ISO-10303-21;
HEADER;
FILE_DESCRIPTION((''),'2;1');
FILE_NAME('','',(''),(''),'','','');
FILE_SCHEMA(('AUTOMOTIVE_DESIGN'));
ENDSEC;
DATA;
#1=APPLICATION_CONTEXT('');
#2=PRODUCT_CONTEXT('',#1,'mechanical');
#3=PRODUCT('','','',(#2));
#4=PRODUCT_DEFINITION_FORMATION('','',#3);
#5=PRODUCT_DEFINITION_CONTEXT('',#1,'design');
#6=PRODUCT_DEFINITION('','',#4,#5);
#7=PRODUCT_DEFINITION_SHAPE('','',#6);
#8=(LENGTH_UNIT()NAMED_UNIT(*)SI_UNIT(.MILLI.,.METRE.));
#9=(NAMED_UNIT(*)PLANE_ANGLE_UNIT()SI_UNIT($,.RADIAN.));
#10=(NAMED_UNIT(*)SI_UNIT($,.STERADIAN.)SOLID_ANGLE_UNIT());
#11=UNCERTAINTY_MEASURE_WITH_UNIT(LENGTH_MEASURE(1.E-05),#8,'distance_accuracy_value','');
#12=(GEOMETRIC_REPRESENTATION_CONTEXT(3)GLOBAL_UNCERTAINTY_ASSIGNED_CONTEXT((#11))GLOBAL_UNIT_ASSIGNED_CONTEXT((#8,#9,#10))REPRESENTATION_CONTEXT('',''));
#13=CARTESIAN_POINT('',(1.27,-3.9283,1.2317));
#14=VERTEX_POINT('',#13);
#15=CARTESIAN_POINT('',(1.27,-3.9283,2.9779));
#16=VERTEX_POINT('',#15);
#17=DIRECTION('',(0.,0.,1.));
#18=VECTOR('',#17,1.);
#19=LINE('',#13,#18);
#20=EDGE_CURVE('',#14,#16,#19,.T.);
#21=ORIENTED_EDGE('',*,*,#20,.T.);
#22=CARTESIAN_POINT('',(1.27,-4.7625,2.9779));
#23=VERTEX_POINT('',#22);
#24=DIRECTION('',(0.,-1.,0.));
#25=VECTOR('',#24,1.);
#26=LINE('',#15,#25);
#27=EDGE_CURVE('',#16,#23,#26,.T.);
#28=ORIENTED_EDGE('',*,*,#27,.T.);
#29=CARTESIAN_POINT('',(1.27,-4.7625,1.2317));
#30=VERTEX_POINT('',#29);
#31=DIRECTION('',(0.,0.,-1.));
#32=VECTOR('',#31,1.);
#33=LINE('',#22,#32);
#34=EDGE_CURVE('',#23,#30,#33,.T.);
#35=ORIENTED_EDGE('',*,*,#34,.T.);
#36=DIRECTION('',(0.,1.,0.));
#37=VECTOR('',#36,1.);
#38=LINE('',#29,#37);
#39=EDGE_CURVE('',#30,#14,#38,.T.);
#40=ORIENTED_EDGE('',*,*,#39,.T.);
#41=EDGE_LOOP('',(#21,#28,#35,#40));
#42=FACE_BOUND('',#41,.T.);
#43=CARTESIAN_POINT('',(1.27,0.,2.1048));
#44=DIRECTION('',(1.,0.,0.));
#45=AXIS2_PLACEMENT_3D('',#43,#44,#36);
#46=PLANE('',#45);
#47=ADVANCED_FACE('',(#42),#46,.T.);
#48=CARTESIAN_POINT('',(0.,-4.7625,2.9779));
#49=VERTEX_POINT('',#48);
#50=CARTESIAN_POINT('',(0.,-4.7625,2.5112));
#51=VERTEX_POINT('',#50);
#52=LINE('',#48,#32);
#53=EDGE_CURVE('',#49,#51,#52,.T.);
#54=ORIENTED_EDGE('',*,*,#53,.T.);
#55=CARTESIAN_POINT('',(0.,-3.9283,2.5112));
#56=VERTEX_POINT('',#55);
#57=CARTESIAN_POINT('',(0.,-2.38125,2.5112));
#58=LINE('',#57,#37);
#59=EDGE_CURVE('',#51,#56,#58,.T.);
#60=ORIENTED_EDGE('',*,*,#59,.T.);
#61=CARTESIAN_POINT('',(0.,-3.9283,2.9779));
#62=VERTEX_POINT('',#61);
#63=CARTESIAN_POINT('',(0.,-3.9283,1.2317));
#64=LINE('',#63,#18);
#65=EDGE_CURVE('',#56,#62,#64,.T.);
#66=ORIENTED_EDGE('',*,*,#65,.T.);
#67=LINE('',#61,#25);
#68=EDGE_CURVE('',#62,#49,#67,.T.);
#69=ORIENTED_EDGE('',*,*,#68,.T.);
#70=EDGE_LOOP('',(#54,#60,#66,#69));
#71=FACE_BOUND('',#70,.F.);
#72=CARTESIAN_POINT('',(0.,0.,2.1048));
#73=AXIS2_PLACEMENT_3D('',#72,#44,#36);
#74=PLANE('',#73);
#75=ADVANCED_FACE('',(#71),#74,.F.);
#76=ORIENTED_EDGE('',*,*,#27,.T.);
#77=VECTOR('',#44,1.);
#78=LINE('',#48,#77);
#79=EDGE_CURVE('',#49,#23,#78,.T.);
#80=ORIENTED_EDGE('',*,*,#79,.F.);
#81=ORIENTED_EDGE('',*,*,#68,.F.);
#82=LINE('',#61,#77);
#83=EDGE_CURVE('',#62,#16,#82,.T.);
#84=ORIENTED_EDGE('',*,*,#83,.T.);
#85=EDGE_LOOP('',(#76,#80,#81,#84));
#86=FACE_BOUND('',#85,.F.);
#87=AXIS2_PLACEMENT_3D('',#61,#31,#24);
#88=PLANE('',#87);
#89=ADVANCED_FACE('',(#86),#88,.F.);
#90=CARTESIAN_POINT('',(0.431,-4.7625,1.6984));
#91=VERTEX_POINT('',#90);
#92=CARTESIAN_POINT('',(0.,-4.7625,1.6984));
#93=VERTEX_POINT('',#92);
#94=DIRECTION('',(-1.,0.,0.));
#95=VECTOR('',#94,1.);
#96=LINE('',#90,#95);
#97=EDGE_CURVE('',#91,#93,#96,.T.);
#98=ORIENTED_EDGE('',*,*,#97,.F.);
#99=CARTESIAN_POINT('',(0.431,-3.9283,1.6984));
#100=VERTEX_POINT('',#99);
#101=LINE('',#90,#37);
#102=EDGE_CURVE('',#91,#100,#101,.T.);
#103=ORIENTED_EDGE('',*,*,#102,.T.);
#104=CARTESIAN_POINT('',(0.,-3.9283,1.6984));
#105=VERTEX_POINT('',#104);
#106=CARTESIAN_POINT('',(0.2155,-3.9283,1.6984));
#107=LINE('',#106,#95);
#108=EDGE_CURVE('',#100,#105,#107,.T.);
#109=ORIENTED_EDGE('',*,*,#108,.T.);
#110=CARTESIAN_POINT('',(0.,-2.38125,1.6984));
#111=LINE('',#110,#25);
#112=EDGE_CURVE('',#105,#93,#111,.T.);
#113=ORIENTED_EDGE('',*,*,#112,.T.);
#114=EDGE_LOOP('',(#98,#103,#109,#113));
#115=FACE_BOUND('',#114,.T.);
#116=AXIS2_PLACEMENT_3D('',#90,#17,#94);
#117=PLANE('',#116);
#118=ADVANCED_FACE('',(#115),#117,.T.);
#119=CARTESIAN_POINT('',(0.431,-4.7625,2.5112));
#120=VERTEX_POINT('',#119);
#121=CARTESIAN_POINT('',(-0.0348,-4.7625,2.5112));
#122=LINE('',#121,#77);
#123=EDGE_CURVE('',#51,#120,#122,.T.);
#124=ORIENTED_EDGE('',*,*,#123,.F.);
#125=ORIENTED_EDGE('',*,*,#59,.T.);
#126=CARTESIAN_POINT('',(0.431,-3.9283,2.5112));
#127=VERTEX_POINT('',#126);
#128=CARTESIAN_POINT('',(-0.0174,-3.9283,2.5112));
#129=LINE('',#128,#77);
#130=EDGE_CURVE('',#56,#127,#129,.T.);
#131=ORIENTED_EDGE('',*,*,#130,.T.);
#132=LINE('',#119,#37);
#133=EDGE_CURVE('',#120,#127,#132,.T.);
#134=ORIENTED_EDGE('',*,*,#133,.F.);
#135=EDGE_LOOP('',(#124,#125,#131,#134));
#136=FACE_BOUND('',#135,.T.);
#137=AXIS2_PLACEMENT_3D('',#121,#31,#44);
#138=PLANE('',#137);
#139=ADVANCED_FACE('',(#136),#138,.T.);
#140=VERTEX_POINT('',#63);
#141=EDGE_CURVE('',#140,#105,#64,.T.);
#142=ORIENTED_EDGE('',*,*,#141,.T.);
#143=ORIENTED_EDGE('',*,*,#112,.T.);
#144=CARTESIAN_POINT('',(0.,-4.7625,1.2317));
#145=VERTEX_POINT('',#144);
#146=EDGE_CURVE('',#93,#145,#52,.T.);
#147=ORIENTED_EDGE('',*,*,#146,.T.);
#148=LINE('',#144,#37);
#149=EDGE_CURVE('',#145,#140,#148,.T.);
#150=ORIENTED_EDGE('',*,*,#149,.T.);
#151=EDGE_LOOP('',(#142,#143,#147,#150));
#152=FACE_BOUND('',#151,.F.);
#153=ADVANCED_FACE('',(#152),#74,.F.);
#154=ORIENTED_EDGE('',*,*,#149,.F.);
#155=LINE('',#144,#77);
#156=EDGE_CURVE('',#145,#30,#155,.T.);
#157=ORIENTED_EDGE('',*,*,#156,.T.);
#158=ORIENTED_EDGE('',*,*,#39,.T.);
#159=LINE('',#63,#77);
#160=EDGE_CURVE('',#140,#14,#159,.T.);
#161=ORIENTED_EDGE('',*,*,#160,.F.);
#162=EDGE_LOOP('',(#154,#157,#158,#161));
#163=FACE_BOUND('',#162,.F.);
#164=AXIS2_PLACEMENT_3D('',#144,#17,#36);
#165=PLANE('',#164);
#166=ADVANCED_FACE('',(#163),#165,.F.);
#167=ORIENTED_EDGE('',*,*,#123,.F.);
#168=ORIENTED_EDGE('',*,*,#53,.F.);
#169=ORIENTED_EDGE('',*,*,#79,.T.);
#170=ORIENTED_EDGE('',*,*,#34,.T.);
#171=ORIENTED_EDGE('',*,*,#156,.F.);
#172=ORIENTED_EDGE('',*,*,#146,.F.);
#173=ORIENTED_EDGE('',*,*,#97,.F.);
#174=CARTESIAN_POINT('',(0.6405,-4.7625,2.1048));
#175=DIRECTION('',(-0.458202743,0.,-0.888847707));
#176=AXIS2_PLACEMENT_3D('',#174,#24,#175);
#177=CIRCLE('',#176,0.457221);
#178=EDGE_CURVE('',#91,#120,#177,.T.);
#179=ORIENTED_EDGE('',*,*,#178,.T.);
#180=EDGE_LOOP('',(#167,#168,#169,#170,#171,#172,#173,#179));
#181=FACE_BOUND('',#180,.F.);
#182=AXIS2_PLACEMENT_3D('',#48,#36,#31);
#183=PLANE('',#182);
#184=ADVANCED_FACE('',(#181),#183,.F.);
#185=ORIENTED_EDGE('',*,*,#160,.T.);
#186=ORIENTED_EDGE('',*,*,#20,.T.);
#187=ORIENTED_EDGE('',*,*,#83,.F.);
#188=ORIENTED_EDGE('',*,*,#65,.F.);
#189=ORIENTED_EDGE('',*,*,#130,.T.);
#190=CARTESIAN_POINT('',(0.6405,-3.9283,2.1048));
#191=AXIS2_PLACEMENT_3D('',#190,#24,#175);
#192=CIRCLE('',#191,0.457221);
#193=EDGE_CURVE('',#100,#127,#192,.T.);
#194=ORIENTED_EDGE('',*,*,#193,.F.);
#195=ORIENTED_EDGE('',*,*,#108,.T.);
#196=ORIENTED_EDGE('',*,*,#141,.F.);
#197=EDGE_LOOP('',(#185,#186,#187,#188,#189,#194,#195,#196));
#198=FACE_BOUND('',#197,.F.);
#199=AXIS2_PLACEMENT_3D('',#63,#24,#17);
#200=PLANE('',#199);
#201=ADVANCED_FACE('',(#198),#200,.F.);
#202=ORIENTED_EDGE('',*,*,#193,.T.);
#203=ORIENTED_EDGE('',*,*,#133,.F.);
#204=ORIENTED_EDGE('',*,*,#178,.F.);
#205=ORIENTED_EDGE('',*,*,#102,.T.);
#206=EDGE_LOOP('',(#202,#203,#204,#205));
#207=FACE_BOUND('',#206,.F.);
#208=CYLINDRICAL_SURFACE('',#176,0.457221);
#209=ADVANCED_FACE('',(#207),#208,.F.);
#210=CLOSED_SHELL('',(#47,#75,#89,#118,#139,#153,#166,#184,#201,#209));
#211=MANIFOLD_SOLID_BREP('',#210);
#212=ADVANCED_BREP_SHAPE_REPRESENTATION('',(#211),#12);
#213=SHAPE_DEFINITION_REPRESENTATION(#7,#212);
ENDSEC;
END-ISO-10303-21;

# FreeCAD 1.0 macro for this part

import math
import FreeCAD as App
import Part
import Sketcher

V = App.Vector
Q = App.Units.Quantity


def add_polygon(sketch, points):
    """Adds a closed chain of lines whose ends are joined by coincident constraints."""
    first, n = sketch.GeometryCount, len(points)
    for a, b in zip(points, points[1:] + points[:1]):
        sketch.addGeometry(Part.LineSegment(App.Vector(*a, 0), App.Vector(*b, 0)), False)
    for i in range(n):
        sketch.addConstraint(Sketcher.Constraint("Coincident", first + i, 2, first + (i + 1) % n, 1))

doc = App.newDocument("Part")
body = doc.addObject("PartDesign::Body", "Body")

sketch1 = body.newObject("Sketcher::SketchObject", "Sketch")
sketch1.AttachmentSupport = (doc.getObject("YZ_Plane"), [""])
sketch1.MapMode = "FlatFace"
add_polygon(sketch1, [(-4.7625, 1.2317), (-3.9283, 1.2317), (-3.9283, 2.9779), (-4.7625, 2.9779)])
sketch1.addConstraint([
    Sketcher.Constraint("Horizontal", 0),
    Sketcher.Constraint("Vertical", 1),
    Sketcher.Constraint("Horizontal", 2),
    Sketcher.Constraint("Vertical", 3),
    Sketcher.Constraint("DistanceX", 2, 2, -1, 1, Q("0.1875 in")),
    Sketcher.Constraint("DistanceX", 0, 1, 0, 2, Q("0.8342 mm")),
    Sketcher.Constraint("DistanceY", 1, 1, 1, 2, Q("1.7462 mm")),
    Sketcher.Constraint("DistanceY", -1, 1, 0, 2, Q("0.0485 in")),
])
pad1 = body.newObject("PartDesign::Pad", "Pad")
pad1.Profile = sketch1
pad1.Length = Q("0.05 in")

sketch2 = body.newObject("Sketcher::SketchObject", "Sketch001")
sketch2.AttachmentSupport = (doc.getObject("XZ_Plane"), [""])
sketch2.MapMode = "FlatFace"
sketch2.AttachmentOffset = App.Placement(V(0, 0, 0.1875 * 25.4), App.Rotation())
sketch2.addGeometry([
    Part.LineSegment(V(-0.0348, 1.6984, 0), V(0.431, 1.6984, 0)),
    Part.ArcOfCircle(Part.Circle(V(0.6405, 2.1048, 0), V(0, 0, 1), 0.457221), math.radians(-117.271194), math.radians(117.271194)),
    Part.LineSegment(V(0.431, 2.5112, 0), V(-0.0348, 2.5112, 0)),
    Part.LineSegment(V(-0.0348, 2.5112, 0), V(-0.0348, 1.6984, 0)),
], False)
sketch2.addConstraint([
    Sketcher.Constraint("Coincident", 0, 2, 1, 1),
    Sketcher.Constraint("Coincident", 1, 2, 2, 1),
    Sketcher.Constraint("Coincident", 2, 2, 3, 1),
    Sketcher.Constraint("Coincident", 3, 2, 0, 1),
    Sketcher.Constraint("Horizontal", 0),
    Sketcher.Constraint("Horizontal", 2),
    Sketcher.Constraint("Vertical", 3),
    Sketcher.Constraint("Vertical", 0, 2, 1, 2),
    Sketcher.Constraint("Radius", 1, Q("0.018 in")),
    Sketcher.Constraint("DistanceY", 3, 2, 3, 1, Q("0.032 in")),
    Sketcher.Constraint("DistanceX", 0, 1, 0, 2, Q("0.4658 mm")),
    Sketcher.Constraint("DistanceX", -1, 1, 1, 3, Q("0.6405 mm")),
    Sketcher.Constraint("DistanceY", -1, 1, 1, 3, Q("2.1048 mm")),
])
pocket1 = body.newObject("PartDesign::Pocket", "Pocket")
pocket1.Profile = sketch2
pocket1.Length = Q("0.05 in")

doc.recompute()
